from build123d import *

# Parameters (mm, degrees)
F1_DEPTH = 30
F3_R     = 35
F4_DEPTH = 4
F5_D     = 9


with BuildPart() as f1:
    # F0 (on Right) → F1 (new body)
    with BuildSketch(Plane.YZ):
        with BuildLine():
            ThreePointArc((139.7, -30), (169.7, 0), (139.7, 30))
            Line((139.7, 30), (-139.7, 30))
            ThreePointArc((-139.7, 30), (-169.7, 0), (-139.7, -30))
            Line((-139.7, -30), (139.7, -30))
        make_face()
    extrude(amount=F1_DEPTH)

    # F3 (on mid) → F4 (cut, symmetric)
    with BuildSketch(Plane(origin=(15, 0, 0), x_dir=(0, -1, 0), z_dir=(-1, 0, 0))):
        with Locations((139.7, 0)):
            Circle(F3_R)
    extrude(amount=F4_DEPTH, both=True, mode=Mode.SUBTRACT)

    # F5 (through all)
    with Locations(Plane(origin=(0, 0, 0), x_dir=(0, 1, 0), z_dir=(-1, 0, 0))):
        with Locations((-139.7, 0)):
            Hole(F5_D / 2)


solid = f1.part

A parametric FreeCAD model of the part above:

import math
import FreeCAD as App
import Part
import Sketcher

V = App.Vector

doc = App.newDocument("Part")
body = doc.addObject("PartDesign::Body", "Body")

# Sketch on YZ plane
sketch1 = body.newObject("Sketcher::SketchObject", "Sketch")
sketch1.AttachmentSupport = (doc.getObject("YZ_Plane"), [""])
sketch1.MapMode = "FlatFace"
sketch1.addGeometry([
    Part.ArcOfCircle(Part.Circle(V(139.7, 0, 0), V(0, 0, 1), 30), math.radians(-90), math.radians(90)),
    Part.LineSegment(V(139.7, 30, 0), V(-139.7, 30, 0)),
    Part.ArcOfCircle(Part.Circle(V(-139.7, 0, 0), V(0, 0, 1), 30), math.radians(90), math.radians(270)),
    Part.LineSegment(V(-139.7, -30, 0), V(139.7, -30, 0)),
], False)
sketch1.addConstraint([
    Sketcher.Constraint("Tangent", 0, 2, 1, 1),
    Sketcher.Constraint("Tangent", 1, 2, 2, 1),
    Sketcher.Constraint("Tangent", 2, 2, 3, 1),
    Sketcher.Constraint("Tangent", 3, 2, 0, 1),
    Sketcher.Constraint("Horizontal", 1),
    Sketcher.Constraint("Horizontal", 3),
    Sketcher.Constraint("Symmetric", 0, 3, 2, 3, -1, 1),
    Sketcher.Constraint("Radius", 0, 30.0),
    Sketcher.Constraint("DistanceX", 1, 2, 1, 1, 279.4),
])
pad1 = body.newObject("PartDesign::Pad", "Pad")
pad1.Profile = sketch1
pad1.Length = 30

# Sketch on YZ plane
sketch2 = body.newObject("Sketcher::SketchObject", "Sketch001")
sketch2.AttachmentSupport = (doc.getObject("YZ_Plane"), [""])
sketch2.MapMode = "FlatFace"
sketch2.AttachmentOffset = App.Placement(V(0, 0, 15), App.Rotation())
sketch2.addGeometry(Part.Circle(V(-139.7, 0, 0), V(0, 0, 1), 35), False)
sketch2.addConstraint([
    Sketcher.Constraint("PointOnObject", 0, 3, -1),
    Sketcher.Constraint("Diameter", 0, 70.0),
    Sketcher.Constraint("DistanceX", 0, 3, -1, 1, 139.7),
])
pocket1 = body.newObject("PartDesign::Pocket", "Pocket")
pocket1.Profile = sketch2
pocket1.Length = 8
pocket1.Midplane = True

# Sketch on YZ plane
sketch3 = body.newObject("Sketcher::SketchObject", "Sketch002")
sketch3.AttachmentSupport = (doc.getObject("YZ_Plane"), [""])
sketch3.MapMode = "FlatFace"
sketch3.addGeometry(Part.Circle(V(-139.7, 0, 0), V(0, 0, 1), 4.5), False)
sketch3.addConstraint([
    Sketcher.Constraint("PointOnObject", 0, 3, -1),
    Sketcher.Constraint("Diameter", 0, 9.0),
    Sketcher.Constraint("DistanceX", 0, 3, -1, 1, 139.7),
])
doc.recompute()
hole = body.newObject("PartDesign::Hole", "Hole")
hole.Profile = sketch3
hole.ThreadType = "None"
hole.Diameter = 9
hole.DepthType = "ThroughAll"
hole.Reversed = True

doc.recompute()
